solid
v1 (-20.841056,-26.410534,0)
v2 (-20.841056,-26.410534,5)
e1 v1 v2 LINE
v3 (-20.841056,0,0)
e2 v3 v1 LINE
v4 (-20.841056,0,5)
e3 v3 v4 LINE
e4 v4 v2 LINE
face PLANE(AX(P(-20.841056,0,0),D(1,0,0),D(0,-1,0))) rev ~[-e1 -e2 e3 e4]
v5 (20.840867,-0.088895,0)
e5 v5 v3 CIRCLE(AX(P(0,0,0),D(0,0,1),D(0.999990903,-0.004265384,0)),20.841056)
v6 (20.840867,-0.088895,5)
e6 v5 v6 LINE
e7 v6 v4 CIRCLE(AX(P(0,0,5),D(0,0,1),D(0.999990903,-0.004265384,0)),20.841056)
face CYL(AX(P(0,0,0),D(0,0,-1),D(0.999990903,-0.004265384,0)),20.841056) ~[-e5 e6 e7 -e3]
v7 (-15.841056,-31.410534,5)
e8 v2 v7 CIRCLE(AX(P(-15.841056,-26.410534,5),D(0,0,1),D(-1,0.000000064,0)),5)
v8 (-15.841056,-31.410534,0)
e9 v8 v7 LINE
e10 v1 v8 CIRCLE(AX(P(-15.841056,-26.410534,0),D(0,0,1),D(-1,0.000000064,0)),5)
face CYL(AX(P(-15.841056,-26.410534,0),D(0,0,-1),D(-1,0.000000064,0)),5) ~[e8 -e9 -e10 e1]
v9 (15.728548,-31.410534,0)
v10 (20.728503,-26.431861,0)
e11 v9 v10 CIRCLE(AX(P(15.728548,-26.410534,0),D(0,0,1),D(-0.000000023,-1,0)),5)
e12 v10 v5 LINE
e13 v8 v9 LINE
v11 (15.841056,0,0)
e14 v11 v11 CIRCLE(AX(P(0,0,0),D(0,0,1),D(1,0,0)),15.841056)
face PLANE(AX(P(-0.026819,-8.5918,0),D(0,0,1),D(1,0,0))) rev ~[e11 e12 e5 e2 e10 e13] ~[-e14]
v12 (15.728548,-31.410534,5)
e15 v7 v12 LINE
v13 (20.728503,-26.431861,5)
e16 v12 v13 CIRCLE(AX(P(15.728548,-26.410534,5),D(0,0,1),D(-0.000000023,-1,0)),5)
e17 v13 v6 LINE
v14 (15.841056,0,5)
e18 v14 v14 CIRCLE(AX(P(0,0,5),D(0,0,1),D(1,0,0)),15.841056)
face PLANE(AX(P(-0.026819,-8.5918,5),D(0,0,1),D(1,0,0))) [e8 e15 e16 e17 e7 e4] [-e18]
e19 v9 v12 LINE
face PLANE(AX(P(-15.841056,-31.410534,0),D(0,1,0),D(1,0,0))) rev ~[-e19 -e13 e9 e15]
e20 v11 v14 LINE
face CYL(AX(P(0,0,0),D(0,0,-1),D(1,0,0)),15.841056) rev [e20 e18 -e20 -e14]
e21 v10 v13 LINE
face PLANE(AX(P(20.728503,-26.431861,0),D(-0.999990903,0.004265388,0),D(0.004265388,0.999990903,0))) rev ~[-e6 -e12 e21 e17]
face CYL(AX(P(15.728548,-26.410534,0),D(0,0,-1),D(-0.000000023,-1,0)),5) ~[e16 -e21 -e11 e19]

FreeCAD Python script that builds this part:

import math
import FreeCAD as App
import Part
import Sketcher
from FreeCAD import Vector
Q = App.Units.Quantity

doc = App.newDocument("Part")
body = doc.addObject("PartDesign::Body", "Body")

# Sketch on XY plane
sketch1 = body.newObject("Sketcher::SketchObject", "Sketch")
sketch1.AttachmentSupport = (doc.getObject("XY_Plane"), [""])
sketch1.MapMode = "FlatFace"
sketch1.addGeometry([
    Part.LineSegment(Vector(20.7, -26.4, 0), Vector(20.8, -0.1, 0)),  # 0
    Part.ArcOfCircle(Part.Circle(Vector(0, 0, 0), Vector(0, 0, 1), 20.8), math.radians(0), math.radians(180)),  # 1
    Part.LineSegment(Vector(-20.8, 0, 0), Vector(-20.8, -26.4, 0)),  # 2
    Part.ArcOfCircle(Part.Circle(Vector(-15.8, -26.4, 0), Vector(0, 0, 1), 5), math.radians(180), math.radians(270)),  # 3
    Part.LineSegment(Vector(-15.8, -31.4, 0), Vector(15.7, -31.4, 0)),  # 4
    Part.ArcOfCircle(Part.Circle(Vector(15.7, -26.4, 0), Vector(0, 0, 1), 5), math.radians(-90), math.radians(0)),  # 5
    Part.Circle(Vector(0, 0, 0), Vector(0, 0, 1), 15.8),  # 6
], False)
sketch1.addConstraint([
    Sketcher.Constraint("Tangent", 0, 2, 1, 1),
    Sketcher.Constraint("Tangent", 1, 2, 2, 1),
    Sketcher.Constraint("Tangent", 2, 2, 3, 1),
    Sketcher.Constraint("Tangent", 3, 2, 4, 1),
    Sketcher.Constraint("Tangent", 4, 2, 5, 1),
    Sketcher.Constraint("Tangent", 5, 2, 0, 1),
    Sketcher.Constraint("Vertical", 2),
    Sketcher.Constraint("Horizontal", 4),
    Sketcher.Constraint("Coincident", 1, 3, -1, 1),
    Sketcher.Constraint("Coincident", 6, 3, -1, 1),
    Sketcher.Constraint("Equal", 3, 5),
    Sketcher.Constraint("Radius", 3, Q("5 mm")),
    Sketcher.Constraint("Diameter", 6, Q("31.682112 mm")),
    Sketcher.Constraint("Radius", 1, Q("20.841056 mm")),
    Sketcher.Constraint("DistanceX", 4, 1, 4, 2, Q("31.569604 mm")),
    Sketcher.Constraint("DistanceY", 2, 2, 2, 1, Q("26.410534 mm")),
])
pad1 = body.newObject("PartDesign::Pad", "Pad")
pad1.Profile = sketch1
pad1.Length = 5

doc.recompute()
